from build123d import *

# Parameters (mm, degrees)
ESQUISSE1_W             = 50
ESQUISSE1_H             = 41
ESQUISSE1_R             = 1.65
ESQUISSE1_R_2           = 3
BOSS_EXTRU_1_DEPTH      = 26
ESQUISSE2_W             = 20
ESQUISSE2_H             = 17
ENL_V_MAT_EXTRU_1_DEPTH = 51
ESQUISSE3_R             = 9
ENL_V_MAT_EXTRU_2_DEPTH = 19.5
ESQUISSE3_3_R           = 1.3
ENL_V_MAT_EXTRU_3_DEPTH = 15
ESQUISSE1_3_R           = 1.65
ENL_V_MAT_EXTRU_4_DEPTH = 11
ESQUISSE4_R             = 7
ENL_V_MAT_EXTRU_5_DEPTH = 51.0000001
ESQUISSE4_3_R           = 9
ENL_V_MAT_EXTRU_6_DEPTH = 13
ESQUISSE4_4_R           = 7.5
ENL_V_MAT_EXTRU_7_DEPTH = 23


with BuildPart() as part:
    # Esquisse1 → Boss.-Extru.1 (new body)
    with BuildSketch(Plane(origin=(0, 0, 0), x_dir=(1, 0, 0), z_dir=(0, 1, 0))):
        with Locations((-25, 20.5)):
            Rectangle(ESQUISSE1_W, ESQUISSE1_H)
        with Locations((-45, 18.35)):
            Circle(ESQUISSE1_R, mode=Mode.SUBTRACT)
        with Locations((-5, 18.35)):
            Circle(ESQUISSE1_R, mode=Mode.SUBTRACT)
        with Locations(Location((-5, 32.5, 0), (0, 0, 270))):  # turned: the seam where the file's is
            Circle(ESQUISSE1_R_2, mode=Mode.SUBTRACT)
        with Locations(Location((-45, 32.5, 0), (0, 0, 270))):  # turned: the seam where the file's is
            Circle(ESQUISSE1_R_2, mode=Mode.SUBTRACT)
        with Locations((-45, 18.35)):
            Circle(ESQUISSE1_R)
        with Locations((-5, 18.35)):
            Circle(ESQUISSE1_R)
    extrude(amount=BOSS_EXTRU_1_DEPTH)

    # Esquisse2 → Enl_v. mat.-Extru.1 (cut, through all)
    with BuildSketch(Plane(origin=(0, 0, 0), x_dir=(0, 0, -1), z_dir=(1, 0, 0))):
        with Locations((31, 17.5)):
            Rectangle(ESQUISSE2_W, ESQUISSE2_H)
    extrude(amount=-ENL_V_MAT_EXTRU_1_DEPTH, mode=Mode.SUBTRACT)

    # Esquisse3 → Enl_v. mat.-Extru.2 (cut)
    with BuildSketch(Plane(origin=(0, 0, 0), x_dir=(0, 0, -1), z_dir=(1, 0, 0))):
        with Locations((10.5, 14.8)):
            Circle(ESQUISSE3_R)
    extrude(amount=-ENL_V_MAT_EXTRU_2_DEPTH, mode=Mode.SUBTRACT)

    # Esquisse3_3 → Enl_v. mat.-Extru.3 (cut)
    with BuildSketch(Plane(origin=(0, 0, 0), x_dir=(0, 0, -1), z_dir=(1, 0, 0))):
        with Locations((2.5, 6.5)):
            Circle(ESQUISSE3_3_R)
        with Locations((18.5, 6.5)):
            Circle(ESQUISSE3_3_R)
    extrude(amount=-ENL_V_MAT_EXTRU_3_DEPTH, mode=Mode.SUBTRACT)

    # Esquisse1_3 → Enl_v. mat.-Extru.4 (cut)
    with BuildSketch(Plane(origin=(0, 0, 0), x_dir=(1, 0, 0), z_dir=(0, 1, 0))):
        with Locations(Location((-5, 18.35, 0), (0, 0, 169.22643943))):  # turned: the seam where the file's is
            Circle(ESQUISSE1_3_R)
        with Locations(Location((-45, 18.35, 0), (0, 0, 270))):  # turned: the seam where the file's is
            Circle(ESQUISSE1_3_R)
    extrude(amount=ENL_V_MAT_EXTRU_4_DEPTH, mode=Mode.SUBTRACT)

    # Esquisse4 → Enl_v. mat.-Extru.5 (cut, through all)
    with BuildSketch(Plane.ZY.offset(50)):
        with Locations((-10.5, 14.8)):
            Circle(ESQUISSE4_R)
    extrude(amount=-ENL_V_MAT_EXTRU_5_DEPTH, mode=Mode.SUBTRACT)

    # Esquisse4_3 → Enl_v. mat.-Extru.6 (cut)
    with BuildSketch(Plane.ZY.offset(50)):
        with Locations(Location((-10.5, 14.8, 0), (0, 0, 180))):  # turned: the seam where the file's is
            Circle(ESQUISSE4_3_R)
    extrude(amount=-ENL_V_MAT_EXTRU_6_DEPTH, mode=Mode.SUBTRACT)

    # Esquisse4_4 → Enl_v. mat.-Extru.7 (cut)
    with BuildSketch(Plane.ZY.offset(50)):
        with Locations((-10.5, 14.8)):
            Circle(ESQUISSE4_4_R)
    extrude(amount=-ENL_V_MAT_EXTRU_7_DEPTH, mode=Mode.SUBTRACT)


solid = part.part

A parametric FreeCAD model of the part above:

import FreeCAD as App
import Part
import Sketcher
from FreeCAD import Vector


def add_polygon(sketch, points):
    """Adds a closed chain of lines whose ends are joined by coincident constraints."""
    first, n = sketch.GeometryCount, len(points)
    for a, b in zip(points, points[1:] + points[:1]):
        sketch.addGeometry(Part.LineSegment(App.Vector(*a, 0), App.Vector(*b, 0)), False)
    for i in range(n):
        sketch.addConstraint(Sketcher.Constraint("Coincident", first + i, 2, first + (i + 1) % n, 1))

doc = App.newDocument("Part")
body = doc.addObject("PartDesign::Body", "Body")

# Sketch on XZ plane
sketch1 = body.newObject("Sketcher::SketchObject", "Sketch")
sketch1.AttachmentSupport = (doc.getObject("XZ_Plane"), [""])
sketch1.MapMode = "FlatFace"
add_polygon(sketch1, [(-50, -41), (-50, 0), (0, 0), (0, -41)])  # lines 0-3
sketch1.addGeometry(Part.Circle(Vector(-45, -32.5, 0), Vector(0, 0, 1), 3), False)  # 4
sketch1.addGeometry(Part.Circle(Vector(-5, -32.5, 0), Vector(0, 0, 1), 3), False)  # 5
sketch1.addConstraint([
    Sketcher.Constraint("Vertical", 0),
    Sketcher.Constraint("Horizontal", 1),
    Sketcher.Constraint("Vertical", 2),
    Sketcher.Constraint("Horizontal", 3),
    Sketcher.Constraint("Coincident", 1, 2, -1, 1),
    Sketcher.Constraint("Equal", 4, 5),
    Sketcher.Constraint("Horizontal", 4, 3, 5, 3),
    Sketcher.Constraint("Diameter", 4, 6.0),
    Sketcher.Constraint("DistanceX", 1, 1, 1, 2, 50.0),
    Sketcher.Constraint("DistanceY", 0, 1, 0, 2, 41.0),
    Sketcher.Constraint("DistanceX", 4, 3, -1, 1, 45.0),
    Sketcher.Constraint("DistanceX", 5, 3, -1, 1, 5.0),
    Sketcher.Constraint("DistanceY", 4, 3, -1, 1, 32.5),
])
pad1 = body.newObject("PartDesign::Pad", "Pad")
pad1.Profile = sketch1
pad1.Length = 26
pad1.Reversed = True

# Sketch on YZ plane
sketch2 = body.newObject("Sketcher::SketchObject", "Sketch001")
sketch2.AttachmentSupport = (doc.getObject("YZ_Plane"), [""])
sketch2.MapMode = "FlatFace"
add_polygon(sketch2, [(26, -21), (9, -21), (9, -41), (26, -41)])  # lines 0-3
sketch2.addConstraint([
    Sketcher.Constraint("Horizontal", 0),
    Sketcher.Constraint("Vertical", 1),
    Sketcher.Constraint("Horizontal", 2),
    Sketcher.Constraint("Vertical", 3),
    Sketcher.Constraint("DistanceX", 0, 2, 0, 1, 17.0),
    Sketcher.Constraint("DistanceY", 1, 2, 1, 1, 20.0),
    Sketcher.Constraint("DistanceX", -1, 1, 0, 2, 9.0),
    Sketcher.Constraint("DistanceY", 0, 2, -1, 1, 21.0),
])
pocket1 = body.newObject("PartDesign::Pocket", "Pocket")
pocket1.Profile = sketch2
pocket1.Type = "ThroughAll"

# Sketch on YZ plane
sketch3 = body.newObject("Sketcher::SketchObject", "Sketch002")
sketch3.AttachmentSupport = (doc.getObject("YZ_Plane"), [""])
sketch3.MapMode = "FlatFace"
sketch3.addGeometry(Part.Circle(Vector(14.8, -10.5, 0), Vector(0, 0, 1), 9), False)
sketch3.addConstraint([
    Sketcher.Constraint("Diameter", 0, 18.0),
    Sketcher.Constraint("DistanceX", -1, 1, 0, 3, 14.8),
    Sketcher.Constraint("DistanceY", 0, 3, -1, 1, 10.5),
])
pocket2 = body.newObject("PartDesign::Pocket", "Pocket001")
pocket2.Profile = sketch3
pocket2.Length = 19.5

# Sketch on YZ plane
sketch4 = body.newObject("Sketcher::SketchObject", "Sketch003")
sketch4.AttachmentSupport = (doc.getObject("YZ_Plane"), [""])
sketch4.MapMode = "FlatFace"
sketch4.addGeometry([
    Part.Circle(Vector(6.5, -2.5, 0), Vector(0, 0, 1), 1.3),
    Part.Circle(Vector(6.5, -18.5, 0), Vector(0, 0, 1), 1.3),
], False)
sketch4.addConstraint([
    Sketcher.Constraint("Equal", 0, 1),
    Sketcher.Constraint("Vertical", 0, 3, 1, 3),
    Sketcher.Constraint("Diameter", 0, 2.6),
    Sketcher.Constraint("DistanceY", 1, 3, 0, 3, 16.0),
    Sketcher.Constraint("DistanceX", -1, 1, 0, 3, 6.5),
    Sketcher.Constraint("DistanceY", 0, 3, -1, 1, 2.5),
])
pocket3 = body.newObject("PartDesign::Pocket", "Pocket002")
pocket3.Profile = sketch4
pocket3.Length = 15

# Sketch on XZ plane
sketch5 = body.newObject("Sketcher::SketchObject", "Sketch004")
sketch5.AttachmentSupport = (doc.getObject("XZ_Plane"), [""])
sketch5.MapMode = "FlatFace"
sketch5.addGeometry([
    Part.Circle(Vector(-5, -18.35, 0), Vector(0, 0, 1), 1.65),
    Part.Circle(Vector(-45, -18.35, 0), Vector(0, 0, 1), 1.65),
], False)
sketch5.addConstraint([
    Sketcher.Constraint("Equal", 0, 1),
    Sketcher.Constraint("Horizontal", 0, 3, 1, 3),
    Sketcher.Constraint("Diameter", 0, 3.3),
    Sketcher.Constraint("DistanceX", 0, 3, -1, 1, 5.0),
    Sketcher.Constraint("DistanceX", 1, 3, -1, 1, 45.0),
    Sketcher.Constraint("DistanceY", 0, 3, -1, 1, 18.35),
])
pocket4 = body.newObject("PartDesign::Pocket", "Pocket003")
pocket4.Profile = sketch5
pocket4.Length = 11

# Sketch on YZ plane
sketch6 = body.newObject("Sketcher::SketchObject", "Sketch005")
sketch6.AttachmentSupport = (doc.getObject("YZ_Plane"), [""])
sketch6.MapMode = "FlatFace"
sketch6.AttachmentOffset = App.Placement(Vector(0, 0, -50), App.Rotation())
sketch6.addGeometry(Part.Circle(Vector(14.8, -10.5, 0), Vector(0, 0, 1), 7), False)
sketch6.addConstraint([
    Sketcher.Constraint("Diameter", 0, 14.0),
    Sketcher.Constraint("DistanceX", -1, 1, 0, 3, 14.8),
    Sketcher.Constraint("DistanceY", 0, 3, -1, 1, 10.5),
])
pocket5 = body.newObject("PartDesign::Pocket", "Pocket004")
pocket5.Profile = sketch6
pocket5.Type = "ThroughAll"
pocket5.Reversed = True

# Sketch on YZ plane
sketch7 = body.newObject("Sketcher::SketchObject", "Sketch006")
sketch7.AttachmentSupport = (doc.getObject("YZ_Plane"), [""])
sketch7.MapMode = "FlatFace"
sketch7.AttachmentOffset = App.Placement(Vector(0, 0, -50), App.Rotation())
sketch7.addGeometry(Part.Circle(Vector(14.8, -10.5, 0), Vector(0, 0, 1), 9), False)
sketch7.addConstraint([
    Sketcher.Constraint("Diameter", 0, 18.0),
    Sketcher.Constraint("DistanceX", -1, 1, 0, 3, 14.8),
    Sketcher.Constraint("DistanceY", 0, 3, -1, 1, 10.5),
])
pocket6 = body.newObject("PartDesign::Pocket", "Pocket005")
pocket6.Profile = sketch7
pocket6.Length = 13
pocket6.Reversed = True

# Sketch on YZ plane
sketch8 = body.newObject("Sketcher::SketchObject", "Sketch007")
sketch8.AttachmentSupport = (doc.getObject("YZ_Plane"), [""])
sketch8.MapMode = "FlatFace"
sketch8.AttachmentOffset = App.Placement(Vector(0, 0, -50), App.Rotation())
sketch8.addGeometry(Part.Circle(Vector(14.8, -10.5, 0), Vector(0, 0, 1), 7.5), False)
sketch8.addConstraint([
    Sketcher.Constraint("Diameter", 0, 15.0),
    Sketcher.Constraint("DistanceX", -1, 1, 0, 3, 14.8),
    Sketcher.Constraint("DistanceY", 0, 3, -1, 1, 10.5),
])
pocket7 = body.newObject("PartDesign::Pocket", "Pocket006")
pocket7.Profile = sketch8
pocket7.Length = 23
pocket7.Reversed = True

doc.recompute()
